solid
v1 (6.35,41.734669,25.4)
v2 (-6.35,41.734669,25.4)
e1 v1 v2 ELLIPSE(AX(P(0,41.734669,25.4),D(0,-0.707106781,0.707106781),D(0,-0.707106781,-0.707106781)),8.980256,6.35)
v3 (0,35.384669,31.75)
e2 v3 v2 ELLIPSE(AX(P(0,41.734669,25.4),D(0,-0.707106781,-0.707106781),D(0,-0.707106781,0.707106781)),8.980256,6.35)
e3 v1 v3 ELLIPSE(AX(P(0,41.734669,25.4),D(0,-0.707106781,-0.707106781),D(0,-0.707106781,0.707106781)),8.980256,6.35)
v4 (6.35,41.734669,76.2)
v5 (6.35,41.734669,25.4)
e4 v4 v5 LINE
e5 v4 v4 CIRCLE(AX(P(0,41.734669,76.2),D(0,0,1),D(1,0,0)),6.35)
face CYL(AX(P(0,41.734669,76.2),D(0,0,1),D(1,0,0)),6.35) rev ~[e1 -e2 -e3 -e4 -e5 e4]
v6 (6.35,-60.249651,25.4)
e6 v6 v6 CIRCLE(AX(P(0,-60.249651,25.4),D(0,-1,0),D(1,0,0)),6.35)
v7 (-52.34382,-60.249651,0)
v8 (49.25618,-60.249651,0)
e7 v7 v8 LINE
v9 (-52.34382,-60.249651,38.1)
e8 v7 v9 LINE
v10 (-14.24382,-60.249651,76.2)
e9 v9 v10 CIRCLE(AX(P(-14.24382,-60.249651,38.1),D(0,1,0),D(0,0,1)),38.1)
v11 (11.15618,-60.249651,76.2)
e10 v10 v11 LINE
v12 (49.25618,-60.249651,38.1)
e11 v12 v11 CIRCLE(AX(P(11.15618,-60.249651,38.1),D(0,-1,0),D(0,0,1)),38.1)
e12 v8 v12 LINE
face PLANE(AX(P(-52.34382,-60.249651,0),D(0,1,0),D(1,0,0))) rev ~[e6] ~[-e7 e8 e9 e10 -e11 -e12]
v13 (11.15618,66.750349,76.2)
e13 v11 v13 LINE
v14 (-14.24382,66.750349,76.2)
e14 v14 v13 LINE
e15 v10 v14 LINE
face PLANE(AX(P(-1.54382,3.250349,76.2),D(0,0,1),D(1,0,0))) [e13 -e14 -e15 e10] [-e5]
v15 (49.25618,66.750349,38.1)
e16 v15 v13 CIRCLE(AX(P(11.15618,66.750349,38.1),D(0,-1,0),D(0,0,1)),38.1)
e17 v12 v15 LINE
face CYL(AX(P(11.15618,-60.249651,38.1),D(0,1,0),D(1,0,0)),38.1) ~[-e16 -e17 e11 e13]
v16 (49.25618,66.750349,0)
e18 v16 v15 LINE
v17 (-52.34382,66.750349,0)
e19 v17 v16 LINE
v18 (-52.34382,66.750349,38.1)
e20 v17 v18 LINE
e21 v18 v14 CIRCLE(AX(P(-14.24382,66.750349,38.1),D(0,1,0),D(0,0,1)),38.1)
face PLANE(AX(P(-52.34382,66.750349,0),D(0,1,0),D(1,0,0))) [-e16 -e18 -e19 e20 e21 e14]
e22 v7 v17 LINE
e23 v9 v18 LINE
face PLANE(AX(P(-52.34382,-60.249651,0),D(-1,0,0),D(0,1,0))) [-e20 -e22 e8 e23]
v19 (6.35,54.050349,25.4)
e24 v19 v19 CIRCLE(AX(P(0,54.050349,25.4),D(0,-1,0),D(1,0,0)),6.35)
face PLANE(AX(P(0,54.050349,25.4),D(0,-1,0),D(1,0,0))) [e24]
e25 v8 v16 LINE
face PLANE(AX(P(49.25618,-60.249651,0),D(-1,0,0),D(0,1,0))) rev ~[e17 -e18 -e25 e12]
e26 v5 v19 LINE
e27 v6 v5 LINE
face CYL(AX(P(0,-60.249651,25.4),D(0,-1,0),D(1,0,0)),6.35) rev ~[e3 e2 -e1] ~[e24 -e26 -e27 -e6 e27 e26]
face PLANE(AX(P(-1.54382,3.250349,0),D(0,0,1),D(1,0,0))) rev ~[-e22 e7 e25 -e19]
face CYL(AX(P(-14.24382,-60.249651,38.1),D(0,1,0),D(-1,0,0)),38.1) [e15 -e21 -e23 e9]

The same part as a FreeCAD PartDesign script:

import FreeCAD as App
import Part
import Sketcher

V = App.Vector
Q = App.Units.Quantity


def edges_at(feature, points):
    """Names of the edges that pass closest to the given points."""
    edges = feature.Shape.Edges
    near = lambda p: min(range(len(edges)), key=lambda i: edges[i].distToShape(Part.Vertex(*p))[0])
    return sorted({f"Edge{near(p) + 1}" for p in points})

doc = App.newDocument("Part")
body = doc.addObject("PartDesign::Body", "Body")

sketch1 = body.newObject("Sketcher::SketchObject", "Sketch")
sketch1.AttachmentSupport = (doc.getObject("XY_Plane"), [""])
sketch1.MapMode = "FlatFace"
sketch1.addGeometry([
    Part.LineSegment(V(-52.34382, 66.750349, 0), V(-52.34382, -60.249651, 0)),
    Part.LineSegment(V(-52.34382, -60.249651, 0), V(49.25618, -60.249651, 0)),
    Part.LineSegment(V(49.25618, -60.249651, 0), V(49.25618, 66.750349, 0)),
    Part.LineSegment(V(49.25618, 66.750349, 0), V(-52.34382, 66.750349, 0)),
], False)
sketch1.addConstraint([
    Sketcher.Constraint("Coincident", 0, 2, 1, 1),
    Sketcher.Constraint("Coincident", 1, 2, 2, 1),
    Sketcher.Constraint("Coincident", 2, 2, 3, 1),
    Sketcher.Constraint("Coincident", 3, 2, 0, 1),
    Sketcher.Constraint("Vertical", 0),
    Sketcher.Constraint("Horizontal", 1),
    Sketcher.Constraint("Vertical", 2),
    Sketcher.Constraint("Horizontal", 3),
    Sketcher.Constraint("DistanceX", 1, 1, 1, 2, Q("4 in")),
    Sketcher.Constraint("DistanceY", 0, 2, 0, 1, Q("5 in")),
    Sketcher.Constraint("DistanceX", 0, 2, -1, 1, Q("52.34382 mm")),
    Sketcher.Constraint("DistanceY", 0, 2, -1, 1, Q("60.249651 mm")),
])
pad1 = body.newObject("PartDesign::Pad", "Pad")
pad1.Profile = sketch1
pad1.Length = Q("3 in")
doc.recompute()

fillet = body.newObject("PartDesign::Fillet", "Fillet")
fillet.Base = (pad1, edges_at(pad1, [(-52.344, 3.25, 76.2), (49.256, 3.25, 76.2)]))
fillet.Radius = Q("1.5 in")

sketch2 = body.newObject("Sketcher::SketchObject", "Sketch001")
sketch2.AttachmentSupport = (doc.getObject("XZ_Plane"), [""])
sketch2.MapMode = "FlatFace"
sketch2.AttachmentOffset = App.Placement(V(0, 0, 60.249651), App.Rotation())
sketch2.addGeometry(Part.Circle(V(0, 25.4, 0), V(0, 0, 1), 6.35), False)
sketch2.addConstraint([
    Sketcher.Constraint("PointOnObject", 0, 3, -2),
    Sketcher.Constraint("Diameter", 0, Q("0.5 in")),
    Sketcher.Constraint("DistanceY", -1, 1, 0, 3, Q("1 in")),
])
pocket1 = body.newObject("PartDesign::Pocket", "Pocket")
pocket1.Profile = sketch2
pocket1.Length = Q("4.5 in")

sketch3 = body.newObject("Sketcher::SketchObject", "Sketch002")
sketch3.AttachmentSupport = (doc.getObject("XY_Plane"), [""])
sketch3.MapMode = "FlatFace"
sketch3.AttachmentOffset = App.Placement(V(0, 0, 3 * 25.4), App.Rotation())
sketch3.addGeometry(Part.Circle(V(0, 41.734669, 0), V(0, 0, 1), 6.35), False)
sketch3.addConstraint([
    Sketcher.Constraint("PointOnObject", 0, 3, -2),
    Sketcher.Constraint("Diameter", 0, Q("0.5 in")),
    Sketcher.Constraint("DistanceY", -1, 1, 0, 3, Q("41.734669 mm")),
])
pocket2 = body.newObject("PartDesign::Pocket", "Pocket001")
pocket2.Profile = sketch3
pocket2.Length = Q("2 in")

doc.recompute()
